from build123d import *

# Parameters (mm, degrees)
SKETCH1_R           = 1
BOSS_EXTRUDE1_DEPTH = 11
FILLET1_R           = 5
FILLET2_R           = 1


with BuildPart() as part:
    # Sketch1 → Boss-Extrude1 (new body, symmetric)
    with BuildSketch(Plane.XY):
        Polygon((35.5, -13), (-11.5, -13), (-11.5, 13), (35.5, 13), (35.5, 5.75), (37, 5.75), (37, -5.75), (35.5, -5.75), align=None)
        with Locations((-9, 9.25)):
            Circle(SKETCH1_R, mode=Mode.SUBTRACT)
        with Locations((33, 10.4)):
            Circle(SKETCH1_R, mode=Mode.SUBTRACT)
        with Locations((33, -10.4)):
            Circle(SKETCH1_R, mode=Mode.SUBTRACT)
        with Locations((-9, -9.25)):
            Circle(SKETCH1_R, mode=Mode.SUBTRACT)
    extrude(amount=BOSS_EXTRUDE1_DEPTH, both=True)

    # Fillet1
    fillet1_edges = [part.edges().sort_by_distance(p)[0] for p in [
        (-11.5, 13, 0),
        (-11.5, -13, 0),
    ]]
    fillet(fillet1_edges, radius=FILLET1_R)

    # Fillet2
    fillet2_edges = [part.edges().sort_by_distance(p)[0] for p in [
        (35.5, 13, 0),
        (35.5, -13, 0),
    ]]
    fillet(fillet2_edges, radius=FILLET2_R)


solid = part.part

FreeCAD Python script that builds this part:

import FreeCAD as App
import Part
import Sketcher

V = App.Vector


def edges_at(feature, points):
    """Names of the edges that pass closest to the given points."""
    edges = feature.Shape.Edges
    near = lambda p: min(range(len(edges)), key=lambda i: edges[i].distToShape(Part.Vertex(*p))[0])
    return sorted({f"Edge{near(p) + 1}" for p in points})

doc = App.newDocument("Part")
params = doc.addObject("Spreadsheet::Sheet", "Params")
for row, (alias, value) in enumerate([
    ("sketch1_diameter", "2 mm"),
    ("sketch1_width", "47 mm"),
    ("sketch1_height", "26 mm"),
    ("sketch1_width2", "1.5 mm"),
    ("sketch1_height2", "11.5 mm"),
    ("pad1_length", "22 mm"),
    ("fillet_radius", "5 mm"),
    ("fillet2_radius", "1 mm"),
], start=1):
    params.set(f"A{row}", alias)
    params.set(f"B{row}", "=" + value)
    params.setAlias(f"B{row}", alias)

body = doc.addObject("PartDesign::Body", "Body")

# Sketch on XY plane
sketch1 = body.newObject("Sketcher::SketchObject", "Sketch")
sketch1.AttachmentSupport = (doc.getObject("XY_Plane"), [""])
sketch1.MapMode = "FlatFace"
sketch1.addGeometry(Part.LineSegment(V(-11.5, -13, 0), V(35.5, -13, 0)), False)
sketch1.addGeometry(Part.LineSegment(V(35.5, -13, 0), V(35.5, -5.8, 0)), False)
sketch1.addGeometry(Part.LineSegment(V(35.5, -5.8, 0), V(37, -5.8, 0)), False)
sketch1.addGeometry(Part.LineSegment(V(37, -5.8, 0), V(37, 5.8, 0)), False)
sketch1.addGeometry(Part.LineSegment(V(37, 5.8, 0), V(35.5, 5.8, 0)), False)
sketch1.addGeometry(Part.LineSegment(V(35.5, 5.8, 0), V(35.5, 13, 0)), False)
sketch1.addGeometry(Part.LineSegment(V(35.5, 13, 0), V(-11.5, 13, 0)), False)
sketch1.addGeometry(Part.LineSegment(V(-11.5, 13, 0), V(-11.5, -13, 0)), False)
sketch1.addGeometry(Part.Circle(V(33, -10.4, 0), V(0, 0, 1), 1), False)
sketch1.addGeometry(Part.Circle(V(-9, -9.2, 0), V(0, 0, 1), 1), False)
sketch1.addGeometry(Part.Circle(V(33, 10.4, 0), V(0, 0, 1), 1), False)
sketch1.addGeometry(Part.Circle(V(-9, 9.2, 0), V(0, 0, 1), 1), False)
sketch1.addConstraint(Sketcher.Constraint("Coincident", 0, 2, 1, 1))
sketch1.addConstraint(Sketcher.Constraint("Coincident", 1, 2, 2, 1))
sketch1.addConstraint(Sketcher.Constraint("Coincident", 2, 2, 3, 1))
sketch1.addConstraint(Sketcher.Constraint("Coincident", 3, 2, 4, 1))
sketch1.addConstraint(Sketcher.Constraint("Coincident", 4, 2, 5, 1))
sketch1.addConstraint(Sketcher.Constraint("Coincident", 5, 2, 6, 1))
sketch1.addConstraint(Sketcher.Constraint("Coincident", 6, 2, 7, 1))
sketch1.addConstraint(Sketcher.Constraint("Coincident", 7, 2, 0, 1))
sketch1.addConstraint(Sketcher.Constraint("Horizontal", 0))
sketch1.addConstraint(Sketcher.Constraint("Vertical", 1))
sketch1.addConstraint(Sketcher.Constraint("Horizontal", 2))
sketch1.addConstraint(Sketcher.Constraint("Vertical", 3))
sketch1.addConstraint(Sketcher.Constraint("Horizontal", 4))
sketch1.addConstraint(Sketcher.Constraint("Vertical", 5))
sketch1.addConstraint(Sketcher.Constraint("Horizontal", 6))
sketch1.addConstraint(Sketcher.Constraint("Vertical", 7))
sketch1.addConstraint(Sketcher.Constraint("Equal", 8, 9))
sketch1.addConstraint(Sketcher.Constraint("Equal", 9, 10))
sketch1.addConstraint(Sketcher.Constraint("Equal", 10, 11))
sketch1.addConstraint(Sketcher.Constraint("Symmetric", 8, 3, 10, 3, -1))
sketch1.addConstraint(Sketcher.Constraint("Symmetric", 9, 3, 11, 3, -1))
sketch1.addConstraint(Sketcher.Constraint("Symmetric", 1, 2, 4, 2, -1))
sketch1.addConstraint(Sketcher.Constraint("Equal", 1, 5))
sketch1.addConstraint(Sketcher.Constraint("Diameter", 8, 2.0))
sketch1.addConstraint(Sketcher.Constraint("DistanceX", 0, 1, 0, 2, 47.0))
sketch1.addConstraint(Sketcher.Constraint("DistanceY", 7, 2, 7, 1, 26.0))
sketch1.addConstraint(Sketcher.Constraint("DistanceX", 2, 1, 2, 2, 1.5))
sketch1.addConstraint(Sketcher.Constraint("DistanceY", 3, 1, 3, 2, 11.5))
sketch1.addConstraint(Sketcher.Constraint("DistanceX", -1, 1, 8, 3, 33.0))
sketch1.addConstraint(Sketcher.Constraint("DistanceX", 9, 3, -1, 1, 9.0))
sketch1.addConstraint(Sketcher.Constraint("DistanceX", -1, 1, 2, 2, 37.0))
sketch1.addConstraint(Sketcher.Constraint("DistanceY", 1, 2, 11, 3, 15.0))
sketch1.addConstraint(Sketcher.Constraint("DistanceY", 8, 3, -1, 1, 10.4))
sketch1.setExpression("Constraints[23]", "Params.sketch1_diameter")
sketch1.setExpression("Constraints[24]", "Params.sketch1_width")
sketch1.setExpression("Constraints[25]", "Params.sketch1_height")
sketch1.setExpression("Constraints[26]", "Params.sketch1_width2")
sketch1.setExpression("Constraints[27]", "Params.sketch1_height2")
pad1 = body.newObject("PartDesign::Pad", "Pad")
pad1.Profile = sketch1
pad1.setExpression("Length", "Params.pad1_length")
pad1.Midplane = True
doc.recompute()

fillet = body.newObject("PartDesign::Fillet", "Fillet")
fillet.Base = (pad1, edges_at(pad1, [(-11.5, 13, 0), (-11.5, -13, 0)]))
fillet.setExpression("Radius", "Params.fillet_radius")
doc.recompute()

fillet2 = body.newObject("PartDesign::Fillet", "Fillet001")
fillet2.Base = (fillet, edges_at(fillet, [(35.5, 13, 0), (35.5, -13, 0)]))
fillet2.setExpression("Radius", "Params.fillet2_radius")

doc.recompute()
